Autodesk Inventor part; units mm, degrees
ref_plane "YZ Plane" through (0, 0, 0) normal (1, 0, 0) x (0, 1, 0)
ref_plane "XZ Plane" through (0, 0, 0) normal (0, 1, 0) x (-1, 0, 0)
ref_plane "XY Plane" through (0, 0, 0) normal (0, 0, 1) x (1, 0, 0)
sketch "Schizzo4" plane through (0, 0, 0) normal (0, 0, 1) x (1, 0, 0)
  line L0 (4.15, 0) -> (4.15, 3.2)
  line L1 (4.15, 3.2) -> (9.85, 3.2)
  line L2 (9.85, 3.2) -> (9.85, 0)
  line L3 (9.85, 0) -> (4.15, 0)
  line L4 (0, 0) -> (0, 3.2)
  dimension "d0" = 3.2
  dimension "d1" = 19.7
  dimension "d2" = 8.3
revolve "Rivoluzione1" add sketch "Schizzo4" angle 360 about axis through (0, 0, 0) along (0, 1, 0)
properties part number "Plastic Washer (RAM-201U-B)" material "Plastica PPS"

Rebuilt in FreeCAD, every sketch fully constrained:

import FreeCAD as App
import Part
import Sketcher
Q = App.Units.Quantity


def add_polygon(sketch, points):
    """Adds a closed chain of lines whose ends are joined by coincident constraints."""
    first, n = sketch.GeometryCount, len(points)
    for a, b in zip(points, points[1:] + points[:1]):
        sketch.addGeometry(Part.LineSegment(App.Vector(*a, 0), App.Vector(*b, 0)), False)
    for i in range(n):
        sketch.addConstraint(Sketcher.Constraint("Coincident", first + i, 2, first + (i + 1) % n, 1))

doc = App.newDocument("Part")
body = doc.addObject("PartDesign::Body", "Body")

# Sketch on XY plane
sketch1 = body.newObject("Sketcher::SketchObject", "Sketch")
sketch1.AttachmentSupport = (doc.getObject("XY_Plane"), [""])
sketch1.MapMode = "FlatFace"
add_polygon(sketch1, [(4.2, 3.2), (4.2, 0), (9.8, 0), (9.8, 3.2)])  # lines 0-3
sketch1.addConstraint([
    Sketcher.Constraint("Vertical", 0),
    Sketcher.Constraint("Horizontal", 1),
    Sketcher.Constraint("Vertical", 2),
    Sketcher.Constraint("Horizontal", 3),
    Sketcher.Constraint("PointOnObject", 0, 2, -1),
    Sketcher.Constraint("DistanceY", 0, 2, 0, 1, Q("3.2 mm")),
    Sketcher.Constraint("DistanceX", 1, 1, 1, 2, Q("5.7 mm")),
    Sketcher.Constraint("DistanceX", -1, 1, 0, 2, Q("4.15 mm")),
])
revolution = body.newObject("PartDesign::Revolution", "Revolution")
revolution.Profile = sketch1
revolution.ReferenceAxis = (sketch1, ["V_Axis"])
revolution.Angle = 360

doc.recompute()
